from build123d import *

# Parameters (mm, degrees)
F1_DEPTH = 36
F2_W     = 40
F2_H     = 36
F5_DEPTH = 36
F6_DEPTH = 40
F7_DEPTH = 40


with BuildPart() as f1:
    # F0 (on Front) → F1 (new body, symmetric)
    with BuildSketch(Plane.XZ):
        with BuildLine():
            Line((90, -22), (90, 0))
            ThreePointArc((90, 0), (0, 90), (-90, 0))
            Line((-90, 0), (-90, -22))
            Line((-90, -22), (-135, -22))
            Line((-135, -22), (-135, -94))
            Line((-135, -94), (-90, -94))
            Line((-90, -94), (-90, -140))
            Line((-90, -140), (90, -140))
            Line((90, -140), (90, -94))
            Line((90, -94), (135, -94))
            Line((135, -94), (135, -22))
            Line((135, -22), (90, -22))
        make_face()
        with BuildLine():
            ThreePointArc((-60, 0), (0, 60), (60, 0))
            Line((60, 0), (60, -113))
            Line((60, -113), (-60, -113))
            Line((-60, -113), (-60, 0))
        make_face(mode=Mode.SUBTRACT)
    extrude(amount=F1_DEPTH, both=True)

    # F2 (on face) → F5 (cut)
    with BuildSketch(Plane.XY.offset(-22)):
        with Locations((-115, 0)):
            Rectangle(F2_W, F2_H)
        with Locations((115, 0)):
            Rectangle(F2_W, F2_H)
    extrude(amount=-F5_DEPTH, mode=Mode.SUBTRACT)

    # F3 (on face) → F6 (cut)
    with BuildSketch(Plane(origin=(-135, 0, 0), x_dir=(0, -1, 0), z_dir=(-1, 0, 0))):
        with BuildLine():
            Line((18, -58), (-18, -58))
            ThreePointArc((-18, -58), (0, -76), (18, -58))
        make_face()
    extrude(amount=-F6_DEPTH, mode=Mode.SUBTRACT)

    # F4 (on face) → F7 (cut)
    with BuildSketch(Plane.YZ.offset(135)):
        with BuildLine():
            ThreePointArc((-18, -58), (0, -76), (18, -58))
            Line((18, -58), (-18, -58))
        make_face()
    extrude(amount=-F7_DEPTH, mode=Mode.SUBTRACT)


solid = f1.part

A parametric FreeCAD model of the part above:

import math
import FreeCAD as App
import Part
import Sketcher
from FreeCAD import Vector
Q = App.Units.Quantity


def add_polygon(sketch, points):
    """Adds a closed chain of lines whose ends are joined by coincident constraints."""
    first, n = sketch.GeometryCount, len(points)
    for a, b in zip(points, points[1:] + points[:1]):
        sketch.addGeometry(Part.LineSegment(App.Vector(*a, 0), App.Vector(*b, 0)), False)
    for i in range(n):
        sketch.addConstraint(Sketcher.Constraint("Coincident", first + i, 2, first + (i + 1) % n, 1))

doc = App.newDocument("Part")
body = doc.addObject("PartDesign::Body", "Body")

# Sketch on XZ plane
sketch1 = body.newObject("Sketcher::SketchObject", "Sketch")
sketch1.AttachmentSupport = (doc.getObject("XZ_Plane"), [""])
sketch1.MapMode = "FlatFace"
sketch1.addGeometry([
    Part.LineSegment(Vector(90, -22, 0), Vector(90, 0, 0)),  # 0
    Part.ArcOfCircle(Part.Circle(Vector(0, 0, 0), Vector(0, 0, 1), 90), math.radians(0), math.radians(180)),  # 1
    Part.LineSegment(Vector(-90, 0, 0), Vector(-90, -22, 0)),  # 2
    Part.LineSegment(Vector(-90, -22, 0), Vector(-135, -22, 0)),  # 3
    Part.LineSegment(Vector(-135, -22, 0), Vector(-135, -94, 0)),  # 4
    Part.LineSegment(Vector(-135, -94, 0), Vector(-90, -94, 0)),  # 5
    Part.LineSegment(Vector(-90, -94, 0), Vector(-90, -140, 0)),  # 6
    Part.LineSegment(Vector(-90, -140, 0), Vector(90, -140, 0)),  # 7
    Part.LineSegment(Vector(90, -140, 0), Vector(90, -94, 0)),  # 8
    Part.LineSegment(Vector(90, -94, 0), Vector(135, -94, 0)),  # 9
    Part.LineSegment(Vector(135, -94, 0), Vector(135, -22, 0)),  # 10
    Part.LineSegment(Vector(135, -22, 0), Vector(90, -22, 0)),  # 11
    Part.LineSegment(Vector(-60, -113, 0), Vector(-60, 0, 0)),  # 12
    Part.ArcOfCircle(Part.Circle(Vector(0, 0, 0), Vector(0, 0, 1), 60), math.radians(0), math.radians(180)),  # 13
    Part.LineSegment(Vector(60, 0, 0), Vector(60, -113, 0)),  # 14
    Part.LineSegment(Vector(60, -113, 0), Vector(-60, -113, 0)),  # 15
], False)
sketch1.addConstraint([
    Sketcher.Constraint("Tangent", 0, 2, 1, 1),
    Sketcher.Constraint("Tangent", 1, 2, 2, 1),
    Sketcher.Constraint("Coincident", 2, 2, 3, 1),
    Sketcher.Constraint("Coincident", 3, 2, 4, 1),
    Sketcher.Constraint("Coincident", 4, 2, 5, 1),
    Sketcher.Constraint("Coincident", 5, 2, 6, 1),
    Sketcher.Constraint("Coincident", 6, 2, 7, 1),
    Sketcher.Constraint("Coincident", 7, 2, 8, 1),
    Sketcher.Constraint("Coincident", 8, 2, 9, 1),
    Sketcher.Constraint("Coincident", 9, 2, 10, 1),
    Sketcher.Constraint("Coincident", 10, 2, 11, 1),
    Sketcher.Constraint("Coincident", 11, 2, 0, 1),
    Sketcher.Constraint("Tangent", 12, 2, 13, 2),
    Sketcher.Constraint("Tangent", 13, 1, 14, 1),
    Sketcher.Constraint("Coincident", 14, 2, 15, 1),
    Sketcher.Constraint("Coincident", 15, 2, 12, 1),
    Sketcher.Constraint("Vertical", 0),
    Sketcher.Constraint("Vertical", 2),
    Sketcher.Constraint("Horizontal", 3),
    Sketcher.Constraint("Vertical", 4),
    Sketcher.Constraint("Horizontal", 5),
    Sketcher.Constraint("Vertical", 6),
    Sketcher.Constraint("Horizontal", 7),
    Sketcher.Constraint("Vertical", 8),
    Sketcher.Constraint("Horizontal", 9),
    Sketcher.Constraint("Vertical", 10),
    Sketcher.Constraint("Horizontal", 11),
    Sketcher.Constraint("Vertical", 12),
    Sketcher.Constraint("Vertical", 14),
    Sketcher.Constraint("Horizontal", 15),
    Sketcher.Constraint("Coincident", 1, 3, -1, 1),
    Sketcher.Constraint("Coincident", 13, 3, -1, 1),
    Sketcher.Constraint("Symmetric", 5, 2, 8, 2, -2),
    Sketcher.Constraint("Symmetric", 3, 2, 10, 2, -2),
    Sketcher.Constraint("Vertical", 2, 2, 5, 2),
    Sketcher.Constraint("Radius", 1, Q("90 mm")),
    Sketcher.Constraint("Radius", 13, Q("60 mm")),
    Sketcher.Constraint("DistanceX", 3, 2, 3, 1, Q("45 mm")),
    Sketcher.Constraint("DistanceY", 0, 1, 0, 2, Q("22 mm")),
    Sketcher.Constraint("DistanceY", 4, 2, 4, 1, Q("72 mm")),
    Sketcher.Constraint("DistanceY", 6, 2, 6, 1, Q("46 mm")),
    Sketcher.Constraint("DistanceY", 12, 1, 12, 2, Q("113 mm")),
])
pad1 = body.newObject("PartDesign::Pad", "Pad")
pad1.Profile = sketch1
pad1.Length = 72
pad1.Midplane = True

# Sketch on XY plane
sketch2 = body.newObject("Sketcher::SketchObject", "Sketch001")
sketch2.AttachmentSupport = (doc.getObject("XY_Plane"), [""])
sketch2.MapMode = "FlatFace"
sketch2.AttachmentOffset = App.Placement(Vector(0, 0, -22), App.Rotation())
add_polygon(sketch2, [(-135, 18), (-135, -18), (-95, -18), (-95, 18)])  # lines 0-3
add_polygon(sketch2, [(95, 18), (95, -18), (135, -18), (135, 18)])  # lines 4-7
sketch2.addConstraint([
    Sketcher.Constraint("Vertical", 0),
    Sketcher.Constraint("Horizontal", 1),
    Sketcher.Constraint("Vertical", 2),
    Sketcher.Constraint("Horizontal", 3),
    Sketcher.Constraint("Vertical", 4),
    Sketcher.Constraint("Horizontal", 5),
    Sketcher.Constraint("Vertical", 6),
    Sketcher.Constraint("Horizontal", 7),
    Sketcher.Constraint("Symmetric", 2, 2, 4, 2, -1, 1),
    Sketcher.Constraint("Symmetric", 0, 2, 6, 2, -1, 1),
    Sketcher.Constraint("Horizontal", 1, 2, 4, 2),
    Sketcher.Constraint("DistanceX", 1, 1, 1, 2, Q("40 mm")),
    Sketcher.Constraint("DistanceY", 0, 2, 0, 1, Q("36 mm")),
    Sketcher.Constraint("DistanceX", 0, 2, -1, 1, Q("135 mm")),
])
pocket1 = body.newObject("PartDesign::Pocket", "Pocket")
pocket1.Profile = sketch2
pocket1.Length = 36

# Sketch on YZ plane
sketch3 = body.newObject("Sketcher::SketchObject", "Sketch002")
sketch3.AttachmentSupport = (doc.getObject("YZ_Plane"), [""])
sketch3.MapMode = "FlatFace"
sketch3.AttachmentOffset = App.Placement(Vector(0, 0, -135), App.Rotation())
sketch3.addGeometry([
    Part.LineSegment(Vector(-18, -58, 0), Vector(18, -58, 0)),
    Part.ArcOfCircle(Part.Circle(Vector(0, -58, 0), Vector(0, 0, 1), 18), math.radians(180), math.radians(360)),
], False)
sketch3.addConstraint([
    Sketcher.Constraint("Coincident", 0, 1, 1, 1),
    Sketcher.Constraint("Coincident", 1, 2, 0, 2),
    Sketcher.Constraint("Horizontal", 0),
    Sketcher.Constraint("PointOnObject", 1, 3, -2),
    Sketcher.Constraint("Horizontal", 1, 3, 0, 1),
    Sketcher.Constraint("Radius", 1, Q("18 mm")),
    Sketcher.Constraint("DistanceY", 1, 3, -1, 1, Q("58 mm")),
])
pocket2 = body.newObject("PartDesign::Pocket", "Pocket001")
pocket2.Profile = sketch3
pocket2.Length = 40
pocket2.Reversed = True

# Sketch on YZ plane
sketch4 = body.newObject("Sketcher::SketchObject", "Sketch003")
sketch4.AttachmentSupport = (doc.getObject("YZ_Plane"), [""])
sketch4.MapMode = "FlatFace"
sketch4.AttachmentOffset = App.Placement(Vector(0, 0, 135), App.Rotation())
sketch4.addGeometry([
    Part.ArcOfCircle(Part.Circle(Vector(0, -58, 0), Vector(0, 0, 1), 18), math.radians(180), math.radians(360)),
    Part.LineSegment(Vector(18, -58, 0), Vector(-18, -58, 0)),
], False)
sketch4.addConstraint([
    Sketcher.Constraint("Coincident", 0, 1, 1, 2),
    Sketcher.Constraint("Coincident", 1, 1, 0, 2),
    Sketcher.Constraint("Horizontal", 1),
    Sketcher.Constraint("PointOnObject", 0, 3, -2),
    Sketcher.Constraint("Radius", 0, Q("18 mm")),
    Sketcher.Constraint("DistanceY", 0, 3, -1, 1, Q("58 mm")),
    Sketcher.Constraint("DistanceY", 0, 1, -1, 1, Q("58 mm")),
])
pocket3 = body.newObject("PartDesign::Pocket", "Pocket002")
pocket3.Profile = sketch4
pocket3.Length = 40

doc.recompute()
